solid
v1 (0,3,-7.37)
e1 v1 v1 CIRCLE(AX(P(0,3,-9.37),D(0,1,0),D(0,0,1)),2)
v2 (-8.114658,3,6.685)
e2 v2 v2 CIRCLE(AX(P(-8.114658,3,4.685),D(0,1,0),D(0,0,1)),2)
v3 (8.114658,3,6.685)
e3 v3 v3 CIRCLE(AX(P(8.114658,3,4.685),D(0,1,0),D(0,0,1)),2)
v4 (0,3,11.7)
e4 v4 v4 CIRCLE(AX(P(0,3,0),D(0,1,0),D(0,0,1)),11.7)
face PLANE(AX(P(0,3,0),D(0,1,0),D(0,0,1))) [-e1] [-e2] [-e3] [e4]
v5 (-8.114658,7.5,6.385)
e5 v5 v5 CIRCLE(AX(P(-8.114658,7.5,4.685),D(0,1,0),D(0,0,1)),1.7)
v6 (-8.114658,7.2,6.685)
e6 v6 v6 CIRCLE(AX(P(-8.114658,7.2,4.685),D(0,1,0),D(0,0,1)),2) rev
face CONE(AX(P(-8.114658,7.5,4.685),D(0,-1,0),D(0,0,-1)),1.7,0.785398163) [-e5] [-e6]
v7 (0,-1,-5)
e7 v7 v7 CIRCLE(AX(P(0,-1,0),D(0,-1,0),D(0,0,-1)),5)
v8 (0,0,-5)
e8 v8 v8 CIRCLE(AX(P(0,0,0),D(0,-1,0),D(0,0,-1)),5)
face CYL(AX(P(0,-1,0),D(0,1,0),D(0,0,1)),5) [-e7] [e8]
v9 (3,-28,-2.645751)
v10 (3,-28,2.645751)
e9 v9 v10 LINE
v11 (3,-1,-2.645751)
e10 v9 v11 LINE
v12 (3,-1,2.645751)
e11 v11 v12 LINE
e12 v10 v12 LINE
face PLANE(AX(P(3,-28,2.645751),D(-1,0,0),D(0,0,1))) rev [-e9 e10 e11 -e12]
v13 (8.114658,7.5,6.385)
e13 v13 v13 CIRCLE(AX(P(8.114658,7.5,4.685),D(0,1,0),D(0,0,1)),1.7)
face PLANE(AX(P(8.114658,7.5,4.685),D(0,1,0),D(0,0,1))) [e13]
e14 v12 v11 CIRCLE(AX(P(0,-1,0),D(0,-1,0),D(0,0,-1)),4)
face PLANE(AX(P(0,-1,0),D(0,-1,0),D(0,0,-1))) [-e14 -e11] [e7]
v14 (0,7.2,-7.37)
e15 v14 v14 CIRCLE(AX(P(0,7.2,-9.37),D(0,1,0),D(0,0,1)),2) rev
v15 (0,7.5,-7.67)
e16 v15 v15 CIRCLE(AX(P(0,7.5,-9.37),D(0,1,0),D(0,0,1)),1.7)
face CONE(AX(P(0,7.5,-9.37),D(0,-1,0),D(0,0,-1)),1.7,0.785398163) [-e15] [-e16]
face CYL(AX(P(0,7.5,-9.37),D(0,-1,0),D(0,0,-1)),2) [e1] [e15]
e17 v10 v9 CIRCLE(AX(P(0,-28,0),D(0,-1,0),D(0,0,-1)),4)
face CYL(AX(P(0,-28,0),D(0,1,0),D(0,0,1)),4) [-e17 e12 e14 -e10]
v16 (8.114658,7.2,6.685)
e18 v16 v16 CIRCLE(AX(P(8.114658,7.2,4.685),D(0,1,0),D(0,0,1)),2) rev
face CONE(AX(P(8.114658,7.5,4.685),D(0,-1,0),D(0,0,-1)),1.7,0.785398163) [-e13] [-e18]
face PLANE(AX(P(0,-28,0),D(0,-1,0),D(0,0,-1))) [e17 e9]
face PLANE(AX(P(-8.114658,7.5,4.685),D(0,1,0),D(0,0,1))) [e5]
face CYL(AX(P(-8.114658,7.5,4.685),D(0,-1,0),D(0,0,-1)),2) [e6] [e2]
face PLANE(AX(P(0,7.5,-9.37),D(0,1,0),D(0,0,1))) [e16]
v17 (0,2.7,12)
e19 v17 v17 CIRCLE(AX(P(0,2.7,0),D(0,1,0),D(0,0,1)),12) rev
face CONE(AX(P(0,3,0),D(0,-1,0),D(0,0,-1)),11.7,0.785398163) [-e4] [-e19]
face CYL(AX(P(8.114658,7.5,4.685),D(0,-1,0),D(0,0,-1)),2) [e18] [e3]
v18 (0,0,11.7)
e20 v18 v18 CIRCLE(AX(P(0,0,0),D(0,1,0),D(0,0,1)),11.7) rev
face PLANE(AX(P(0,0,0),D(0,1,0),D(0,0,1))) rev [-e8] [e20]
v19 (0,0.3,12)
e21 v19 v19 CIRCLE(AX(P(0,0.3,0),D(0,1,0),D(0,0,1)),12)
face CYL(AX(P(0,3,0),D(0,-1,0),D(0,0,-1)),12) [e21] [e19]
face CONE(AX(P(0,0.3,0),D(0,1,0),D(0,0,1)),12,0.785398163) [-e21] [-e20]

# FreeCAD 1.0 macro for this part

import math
import FreeCAD as App
import Part
import Sketcher

V = App.Vector
Q = App.Units.Quantity


def edges_at(feature, points):
    """Names of the edges that pass closest to the given points."""
    edges = feature.Shape.Edges
    near = lambda p: min(range(len(edges)), key=lambda i: edges[i].distToShape(Part.Vertex(*p))[0])
    return sorted({f"Edge{near(p) + 1}" for p in points})

doc = App.newDocument("Part")
body = doc.addObject("PartDesign::Body", "Body")

sketch1 = body.newObject("Sketcher::SketchObject", "Sketch")
sketch1.AttachmentSupport = (doc.getObject("XZ_Plane"), [""])
sketch1.MapMode = "FlatFace"
sketch1.addGeometry(Part.Circle(V(0, 0, 0), V(0, 0, 1), 12), False)
sketch1.addConstraint([
    Sketcher.Constraint("Coincident", 0, 3, -1, 1),
    Sketcher.Constraint("Diameter", 0, Q("24 mm")),
])
pad1 = body.newObject("PartDesign::Pad", "Pad")
pad1.Profile = sketch1
pad1.Length = 3
pad1.Reversed = True

sketch2 = body.newObject("Sketcher::SketchObject", "Sketch001")
sketch2.AttachmentSupport = (doc.getObject("XZ_Plane"), [""])
sketch2.MapMode = "FlatFace"
sketch2.AttachmentOffset = App.Placement(V(0, 0, -3), App.Rotation())
sketch2.addGeometry([
    Part.Circle(V(0, -9.4, 0), V(0, 0, 1), 2),
    Part.Circle(V(-8.1, 4.7, 0), V(0, 0, 1), 2),
    Part.Circle(V(8.1, 4.7, 0), V(0, 0, 1), 2),
], False)
sketch2.addConstraint([
    Sketcher.Constraint("Equal", 0, 1),
    Sketcher.Constraint("Equal", 1, 2),
    Sketcher.Constraint("Symmetric", 1, 3, 2, 3, -2),
    Sketcher.Constraint("PointOnObject", 0, 3, -2),
    Sketcher.Constraint("Diameter", 0, Q("4 mm")),
    Sketcher.Constraint("DistanceY", 0, 3, -1, 1, Q("9.37 mm")),
    Sketcher.Constraint("DistanceY", -1, 1, 1, 3, Q("4.685 mm")),
    Sketcher.Constraint("DistanceX", 1, 3, -1, 1, Q("8.114658 mm")),
])
pad2 = body.newObject("PartDesign::Pad", "Pad001")
pad2.Profile = sketch2
pad2.Length = 4.5
pad2.Reversed = True

sketch3 = body.newObject("Sketcher::SketchObject", "Sketch002")
sketch3.AttachmentSupport = (doc.getObject("XZ_Plane"), [""])
sketch3.MapMode = "FlatFace"
sketch3.addGeometry(Part.Circle(V(0, 0, 0), V(0, 0, 1), 5), False)
sketch3.addConstraint([
    Sketcher.Constraint("Coincident", 0, 3, -1, 1),
    Sketcher.Constraint("Diameter", 0, Q("10 mm")),
])
pad3 = body.newObject("PartDesign::Pad", "Pad002")
pad3.Profile = sketch3
pad3.Length = 1

sketch4 = body.newObject("Sketcher::SketchObject", "Sketch003")
sketch4.AttachmentSupport = (doc.getObject("XZ_Plane"), [""])
sketch4.MapMode = "FlatFace"
sketch4.AttachmentOffset = App.Placement(V(0, 0, 1), App.Rotation())
sketch4.addGeometry([
    Part.LineSegment(V(3, -2.6, 0), V(3, 2.6, 0)),
    Part.ArcOfCircle(Part.Circle(V(0, 0, 0), V(0, 0, 1), 4), math.radians(41), math.radians(319)),
], False)
sketch4.addConstraint([
    Sketcher.Constraint("Coincident", 0, 1, 1, 2),
    Sketcher.Constraint("Coincident", 1, 1, 0, 2),
    Sketcher.Constraint("Vertical", 0),
    Sketcher.Constraint("Coincident", 1, 3, -1, 1),
    Sketcher.Constraint("Radius", 1, Q("4 mm")),
    Sketcher.Constraint("DistanceX", -1, 1, 0, 1, Q("3 mm")),
])
pad4 = body.newObject("PartDesign::Pad", "Pad003")
pad4.Profile = sketch4
pad4.Length = 27
doc.recompute()

chamfer = body.newObject("PartDesign::Chamfer", "Chamfer")
chamfer.Base = (pad4, edges_at(pad4, [
    (-8.115, 7.5, 2.685),
    (8.115, 7.5, 2.685),
    (0, 0, -12),
    (0, 3, -12),
    (0, 7.5, -11.37),
]))
chamfer.Size = 0.3

doc.recompute()
